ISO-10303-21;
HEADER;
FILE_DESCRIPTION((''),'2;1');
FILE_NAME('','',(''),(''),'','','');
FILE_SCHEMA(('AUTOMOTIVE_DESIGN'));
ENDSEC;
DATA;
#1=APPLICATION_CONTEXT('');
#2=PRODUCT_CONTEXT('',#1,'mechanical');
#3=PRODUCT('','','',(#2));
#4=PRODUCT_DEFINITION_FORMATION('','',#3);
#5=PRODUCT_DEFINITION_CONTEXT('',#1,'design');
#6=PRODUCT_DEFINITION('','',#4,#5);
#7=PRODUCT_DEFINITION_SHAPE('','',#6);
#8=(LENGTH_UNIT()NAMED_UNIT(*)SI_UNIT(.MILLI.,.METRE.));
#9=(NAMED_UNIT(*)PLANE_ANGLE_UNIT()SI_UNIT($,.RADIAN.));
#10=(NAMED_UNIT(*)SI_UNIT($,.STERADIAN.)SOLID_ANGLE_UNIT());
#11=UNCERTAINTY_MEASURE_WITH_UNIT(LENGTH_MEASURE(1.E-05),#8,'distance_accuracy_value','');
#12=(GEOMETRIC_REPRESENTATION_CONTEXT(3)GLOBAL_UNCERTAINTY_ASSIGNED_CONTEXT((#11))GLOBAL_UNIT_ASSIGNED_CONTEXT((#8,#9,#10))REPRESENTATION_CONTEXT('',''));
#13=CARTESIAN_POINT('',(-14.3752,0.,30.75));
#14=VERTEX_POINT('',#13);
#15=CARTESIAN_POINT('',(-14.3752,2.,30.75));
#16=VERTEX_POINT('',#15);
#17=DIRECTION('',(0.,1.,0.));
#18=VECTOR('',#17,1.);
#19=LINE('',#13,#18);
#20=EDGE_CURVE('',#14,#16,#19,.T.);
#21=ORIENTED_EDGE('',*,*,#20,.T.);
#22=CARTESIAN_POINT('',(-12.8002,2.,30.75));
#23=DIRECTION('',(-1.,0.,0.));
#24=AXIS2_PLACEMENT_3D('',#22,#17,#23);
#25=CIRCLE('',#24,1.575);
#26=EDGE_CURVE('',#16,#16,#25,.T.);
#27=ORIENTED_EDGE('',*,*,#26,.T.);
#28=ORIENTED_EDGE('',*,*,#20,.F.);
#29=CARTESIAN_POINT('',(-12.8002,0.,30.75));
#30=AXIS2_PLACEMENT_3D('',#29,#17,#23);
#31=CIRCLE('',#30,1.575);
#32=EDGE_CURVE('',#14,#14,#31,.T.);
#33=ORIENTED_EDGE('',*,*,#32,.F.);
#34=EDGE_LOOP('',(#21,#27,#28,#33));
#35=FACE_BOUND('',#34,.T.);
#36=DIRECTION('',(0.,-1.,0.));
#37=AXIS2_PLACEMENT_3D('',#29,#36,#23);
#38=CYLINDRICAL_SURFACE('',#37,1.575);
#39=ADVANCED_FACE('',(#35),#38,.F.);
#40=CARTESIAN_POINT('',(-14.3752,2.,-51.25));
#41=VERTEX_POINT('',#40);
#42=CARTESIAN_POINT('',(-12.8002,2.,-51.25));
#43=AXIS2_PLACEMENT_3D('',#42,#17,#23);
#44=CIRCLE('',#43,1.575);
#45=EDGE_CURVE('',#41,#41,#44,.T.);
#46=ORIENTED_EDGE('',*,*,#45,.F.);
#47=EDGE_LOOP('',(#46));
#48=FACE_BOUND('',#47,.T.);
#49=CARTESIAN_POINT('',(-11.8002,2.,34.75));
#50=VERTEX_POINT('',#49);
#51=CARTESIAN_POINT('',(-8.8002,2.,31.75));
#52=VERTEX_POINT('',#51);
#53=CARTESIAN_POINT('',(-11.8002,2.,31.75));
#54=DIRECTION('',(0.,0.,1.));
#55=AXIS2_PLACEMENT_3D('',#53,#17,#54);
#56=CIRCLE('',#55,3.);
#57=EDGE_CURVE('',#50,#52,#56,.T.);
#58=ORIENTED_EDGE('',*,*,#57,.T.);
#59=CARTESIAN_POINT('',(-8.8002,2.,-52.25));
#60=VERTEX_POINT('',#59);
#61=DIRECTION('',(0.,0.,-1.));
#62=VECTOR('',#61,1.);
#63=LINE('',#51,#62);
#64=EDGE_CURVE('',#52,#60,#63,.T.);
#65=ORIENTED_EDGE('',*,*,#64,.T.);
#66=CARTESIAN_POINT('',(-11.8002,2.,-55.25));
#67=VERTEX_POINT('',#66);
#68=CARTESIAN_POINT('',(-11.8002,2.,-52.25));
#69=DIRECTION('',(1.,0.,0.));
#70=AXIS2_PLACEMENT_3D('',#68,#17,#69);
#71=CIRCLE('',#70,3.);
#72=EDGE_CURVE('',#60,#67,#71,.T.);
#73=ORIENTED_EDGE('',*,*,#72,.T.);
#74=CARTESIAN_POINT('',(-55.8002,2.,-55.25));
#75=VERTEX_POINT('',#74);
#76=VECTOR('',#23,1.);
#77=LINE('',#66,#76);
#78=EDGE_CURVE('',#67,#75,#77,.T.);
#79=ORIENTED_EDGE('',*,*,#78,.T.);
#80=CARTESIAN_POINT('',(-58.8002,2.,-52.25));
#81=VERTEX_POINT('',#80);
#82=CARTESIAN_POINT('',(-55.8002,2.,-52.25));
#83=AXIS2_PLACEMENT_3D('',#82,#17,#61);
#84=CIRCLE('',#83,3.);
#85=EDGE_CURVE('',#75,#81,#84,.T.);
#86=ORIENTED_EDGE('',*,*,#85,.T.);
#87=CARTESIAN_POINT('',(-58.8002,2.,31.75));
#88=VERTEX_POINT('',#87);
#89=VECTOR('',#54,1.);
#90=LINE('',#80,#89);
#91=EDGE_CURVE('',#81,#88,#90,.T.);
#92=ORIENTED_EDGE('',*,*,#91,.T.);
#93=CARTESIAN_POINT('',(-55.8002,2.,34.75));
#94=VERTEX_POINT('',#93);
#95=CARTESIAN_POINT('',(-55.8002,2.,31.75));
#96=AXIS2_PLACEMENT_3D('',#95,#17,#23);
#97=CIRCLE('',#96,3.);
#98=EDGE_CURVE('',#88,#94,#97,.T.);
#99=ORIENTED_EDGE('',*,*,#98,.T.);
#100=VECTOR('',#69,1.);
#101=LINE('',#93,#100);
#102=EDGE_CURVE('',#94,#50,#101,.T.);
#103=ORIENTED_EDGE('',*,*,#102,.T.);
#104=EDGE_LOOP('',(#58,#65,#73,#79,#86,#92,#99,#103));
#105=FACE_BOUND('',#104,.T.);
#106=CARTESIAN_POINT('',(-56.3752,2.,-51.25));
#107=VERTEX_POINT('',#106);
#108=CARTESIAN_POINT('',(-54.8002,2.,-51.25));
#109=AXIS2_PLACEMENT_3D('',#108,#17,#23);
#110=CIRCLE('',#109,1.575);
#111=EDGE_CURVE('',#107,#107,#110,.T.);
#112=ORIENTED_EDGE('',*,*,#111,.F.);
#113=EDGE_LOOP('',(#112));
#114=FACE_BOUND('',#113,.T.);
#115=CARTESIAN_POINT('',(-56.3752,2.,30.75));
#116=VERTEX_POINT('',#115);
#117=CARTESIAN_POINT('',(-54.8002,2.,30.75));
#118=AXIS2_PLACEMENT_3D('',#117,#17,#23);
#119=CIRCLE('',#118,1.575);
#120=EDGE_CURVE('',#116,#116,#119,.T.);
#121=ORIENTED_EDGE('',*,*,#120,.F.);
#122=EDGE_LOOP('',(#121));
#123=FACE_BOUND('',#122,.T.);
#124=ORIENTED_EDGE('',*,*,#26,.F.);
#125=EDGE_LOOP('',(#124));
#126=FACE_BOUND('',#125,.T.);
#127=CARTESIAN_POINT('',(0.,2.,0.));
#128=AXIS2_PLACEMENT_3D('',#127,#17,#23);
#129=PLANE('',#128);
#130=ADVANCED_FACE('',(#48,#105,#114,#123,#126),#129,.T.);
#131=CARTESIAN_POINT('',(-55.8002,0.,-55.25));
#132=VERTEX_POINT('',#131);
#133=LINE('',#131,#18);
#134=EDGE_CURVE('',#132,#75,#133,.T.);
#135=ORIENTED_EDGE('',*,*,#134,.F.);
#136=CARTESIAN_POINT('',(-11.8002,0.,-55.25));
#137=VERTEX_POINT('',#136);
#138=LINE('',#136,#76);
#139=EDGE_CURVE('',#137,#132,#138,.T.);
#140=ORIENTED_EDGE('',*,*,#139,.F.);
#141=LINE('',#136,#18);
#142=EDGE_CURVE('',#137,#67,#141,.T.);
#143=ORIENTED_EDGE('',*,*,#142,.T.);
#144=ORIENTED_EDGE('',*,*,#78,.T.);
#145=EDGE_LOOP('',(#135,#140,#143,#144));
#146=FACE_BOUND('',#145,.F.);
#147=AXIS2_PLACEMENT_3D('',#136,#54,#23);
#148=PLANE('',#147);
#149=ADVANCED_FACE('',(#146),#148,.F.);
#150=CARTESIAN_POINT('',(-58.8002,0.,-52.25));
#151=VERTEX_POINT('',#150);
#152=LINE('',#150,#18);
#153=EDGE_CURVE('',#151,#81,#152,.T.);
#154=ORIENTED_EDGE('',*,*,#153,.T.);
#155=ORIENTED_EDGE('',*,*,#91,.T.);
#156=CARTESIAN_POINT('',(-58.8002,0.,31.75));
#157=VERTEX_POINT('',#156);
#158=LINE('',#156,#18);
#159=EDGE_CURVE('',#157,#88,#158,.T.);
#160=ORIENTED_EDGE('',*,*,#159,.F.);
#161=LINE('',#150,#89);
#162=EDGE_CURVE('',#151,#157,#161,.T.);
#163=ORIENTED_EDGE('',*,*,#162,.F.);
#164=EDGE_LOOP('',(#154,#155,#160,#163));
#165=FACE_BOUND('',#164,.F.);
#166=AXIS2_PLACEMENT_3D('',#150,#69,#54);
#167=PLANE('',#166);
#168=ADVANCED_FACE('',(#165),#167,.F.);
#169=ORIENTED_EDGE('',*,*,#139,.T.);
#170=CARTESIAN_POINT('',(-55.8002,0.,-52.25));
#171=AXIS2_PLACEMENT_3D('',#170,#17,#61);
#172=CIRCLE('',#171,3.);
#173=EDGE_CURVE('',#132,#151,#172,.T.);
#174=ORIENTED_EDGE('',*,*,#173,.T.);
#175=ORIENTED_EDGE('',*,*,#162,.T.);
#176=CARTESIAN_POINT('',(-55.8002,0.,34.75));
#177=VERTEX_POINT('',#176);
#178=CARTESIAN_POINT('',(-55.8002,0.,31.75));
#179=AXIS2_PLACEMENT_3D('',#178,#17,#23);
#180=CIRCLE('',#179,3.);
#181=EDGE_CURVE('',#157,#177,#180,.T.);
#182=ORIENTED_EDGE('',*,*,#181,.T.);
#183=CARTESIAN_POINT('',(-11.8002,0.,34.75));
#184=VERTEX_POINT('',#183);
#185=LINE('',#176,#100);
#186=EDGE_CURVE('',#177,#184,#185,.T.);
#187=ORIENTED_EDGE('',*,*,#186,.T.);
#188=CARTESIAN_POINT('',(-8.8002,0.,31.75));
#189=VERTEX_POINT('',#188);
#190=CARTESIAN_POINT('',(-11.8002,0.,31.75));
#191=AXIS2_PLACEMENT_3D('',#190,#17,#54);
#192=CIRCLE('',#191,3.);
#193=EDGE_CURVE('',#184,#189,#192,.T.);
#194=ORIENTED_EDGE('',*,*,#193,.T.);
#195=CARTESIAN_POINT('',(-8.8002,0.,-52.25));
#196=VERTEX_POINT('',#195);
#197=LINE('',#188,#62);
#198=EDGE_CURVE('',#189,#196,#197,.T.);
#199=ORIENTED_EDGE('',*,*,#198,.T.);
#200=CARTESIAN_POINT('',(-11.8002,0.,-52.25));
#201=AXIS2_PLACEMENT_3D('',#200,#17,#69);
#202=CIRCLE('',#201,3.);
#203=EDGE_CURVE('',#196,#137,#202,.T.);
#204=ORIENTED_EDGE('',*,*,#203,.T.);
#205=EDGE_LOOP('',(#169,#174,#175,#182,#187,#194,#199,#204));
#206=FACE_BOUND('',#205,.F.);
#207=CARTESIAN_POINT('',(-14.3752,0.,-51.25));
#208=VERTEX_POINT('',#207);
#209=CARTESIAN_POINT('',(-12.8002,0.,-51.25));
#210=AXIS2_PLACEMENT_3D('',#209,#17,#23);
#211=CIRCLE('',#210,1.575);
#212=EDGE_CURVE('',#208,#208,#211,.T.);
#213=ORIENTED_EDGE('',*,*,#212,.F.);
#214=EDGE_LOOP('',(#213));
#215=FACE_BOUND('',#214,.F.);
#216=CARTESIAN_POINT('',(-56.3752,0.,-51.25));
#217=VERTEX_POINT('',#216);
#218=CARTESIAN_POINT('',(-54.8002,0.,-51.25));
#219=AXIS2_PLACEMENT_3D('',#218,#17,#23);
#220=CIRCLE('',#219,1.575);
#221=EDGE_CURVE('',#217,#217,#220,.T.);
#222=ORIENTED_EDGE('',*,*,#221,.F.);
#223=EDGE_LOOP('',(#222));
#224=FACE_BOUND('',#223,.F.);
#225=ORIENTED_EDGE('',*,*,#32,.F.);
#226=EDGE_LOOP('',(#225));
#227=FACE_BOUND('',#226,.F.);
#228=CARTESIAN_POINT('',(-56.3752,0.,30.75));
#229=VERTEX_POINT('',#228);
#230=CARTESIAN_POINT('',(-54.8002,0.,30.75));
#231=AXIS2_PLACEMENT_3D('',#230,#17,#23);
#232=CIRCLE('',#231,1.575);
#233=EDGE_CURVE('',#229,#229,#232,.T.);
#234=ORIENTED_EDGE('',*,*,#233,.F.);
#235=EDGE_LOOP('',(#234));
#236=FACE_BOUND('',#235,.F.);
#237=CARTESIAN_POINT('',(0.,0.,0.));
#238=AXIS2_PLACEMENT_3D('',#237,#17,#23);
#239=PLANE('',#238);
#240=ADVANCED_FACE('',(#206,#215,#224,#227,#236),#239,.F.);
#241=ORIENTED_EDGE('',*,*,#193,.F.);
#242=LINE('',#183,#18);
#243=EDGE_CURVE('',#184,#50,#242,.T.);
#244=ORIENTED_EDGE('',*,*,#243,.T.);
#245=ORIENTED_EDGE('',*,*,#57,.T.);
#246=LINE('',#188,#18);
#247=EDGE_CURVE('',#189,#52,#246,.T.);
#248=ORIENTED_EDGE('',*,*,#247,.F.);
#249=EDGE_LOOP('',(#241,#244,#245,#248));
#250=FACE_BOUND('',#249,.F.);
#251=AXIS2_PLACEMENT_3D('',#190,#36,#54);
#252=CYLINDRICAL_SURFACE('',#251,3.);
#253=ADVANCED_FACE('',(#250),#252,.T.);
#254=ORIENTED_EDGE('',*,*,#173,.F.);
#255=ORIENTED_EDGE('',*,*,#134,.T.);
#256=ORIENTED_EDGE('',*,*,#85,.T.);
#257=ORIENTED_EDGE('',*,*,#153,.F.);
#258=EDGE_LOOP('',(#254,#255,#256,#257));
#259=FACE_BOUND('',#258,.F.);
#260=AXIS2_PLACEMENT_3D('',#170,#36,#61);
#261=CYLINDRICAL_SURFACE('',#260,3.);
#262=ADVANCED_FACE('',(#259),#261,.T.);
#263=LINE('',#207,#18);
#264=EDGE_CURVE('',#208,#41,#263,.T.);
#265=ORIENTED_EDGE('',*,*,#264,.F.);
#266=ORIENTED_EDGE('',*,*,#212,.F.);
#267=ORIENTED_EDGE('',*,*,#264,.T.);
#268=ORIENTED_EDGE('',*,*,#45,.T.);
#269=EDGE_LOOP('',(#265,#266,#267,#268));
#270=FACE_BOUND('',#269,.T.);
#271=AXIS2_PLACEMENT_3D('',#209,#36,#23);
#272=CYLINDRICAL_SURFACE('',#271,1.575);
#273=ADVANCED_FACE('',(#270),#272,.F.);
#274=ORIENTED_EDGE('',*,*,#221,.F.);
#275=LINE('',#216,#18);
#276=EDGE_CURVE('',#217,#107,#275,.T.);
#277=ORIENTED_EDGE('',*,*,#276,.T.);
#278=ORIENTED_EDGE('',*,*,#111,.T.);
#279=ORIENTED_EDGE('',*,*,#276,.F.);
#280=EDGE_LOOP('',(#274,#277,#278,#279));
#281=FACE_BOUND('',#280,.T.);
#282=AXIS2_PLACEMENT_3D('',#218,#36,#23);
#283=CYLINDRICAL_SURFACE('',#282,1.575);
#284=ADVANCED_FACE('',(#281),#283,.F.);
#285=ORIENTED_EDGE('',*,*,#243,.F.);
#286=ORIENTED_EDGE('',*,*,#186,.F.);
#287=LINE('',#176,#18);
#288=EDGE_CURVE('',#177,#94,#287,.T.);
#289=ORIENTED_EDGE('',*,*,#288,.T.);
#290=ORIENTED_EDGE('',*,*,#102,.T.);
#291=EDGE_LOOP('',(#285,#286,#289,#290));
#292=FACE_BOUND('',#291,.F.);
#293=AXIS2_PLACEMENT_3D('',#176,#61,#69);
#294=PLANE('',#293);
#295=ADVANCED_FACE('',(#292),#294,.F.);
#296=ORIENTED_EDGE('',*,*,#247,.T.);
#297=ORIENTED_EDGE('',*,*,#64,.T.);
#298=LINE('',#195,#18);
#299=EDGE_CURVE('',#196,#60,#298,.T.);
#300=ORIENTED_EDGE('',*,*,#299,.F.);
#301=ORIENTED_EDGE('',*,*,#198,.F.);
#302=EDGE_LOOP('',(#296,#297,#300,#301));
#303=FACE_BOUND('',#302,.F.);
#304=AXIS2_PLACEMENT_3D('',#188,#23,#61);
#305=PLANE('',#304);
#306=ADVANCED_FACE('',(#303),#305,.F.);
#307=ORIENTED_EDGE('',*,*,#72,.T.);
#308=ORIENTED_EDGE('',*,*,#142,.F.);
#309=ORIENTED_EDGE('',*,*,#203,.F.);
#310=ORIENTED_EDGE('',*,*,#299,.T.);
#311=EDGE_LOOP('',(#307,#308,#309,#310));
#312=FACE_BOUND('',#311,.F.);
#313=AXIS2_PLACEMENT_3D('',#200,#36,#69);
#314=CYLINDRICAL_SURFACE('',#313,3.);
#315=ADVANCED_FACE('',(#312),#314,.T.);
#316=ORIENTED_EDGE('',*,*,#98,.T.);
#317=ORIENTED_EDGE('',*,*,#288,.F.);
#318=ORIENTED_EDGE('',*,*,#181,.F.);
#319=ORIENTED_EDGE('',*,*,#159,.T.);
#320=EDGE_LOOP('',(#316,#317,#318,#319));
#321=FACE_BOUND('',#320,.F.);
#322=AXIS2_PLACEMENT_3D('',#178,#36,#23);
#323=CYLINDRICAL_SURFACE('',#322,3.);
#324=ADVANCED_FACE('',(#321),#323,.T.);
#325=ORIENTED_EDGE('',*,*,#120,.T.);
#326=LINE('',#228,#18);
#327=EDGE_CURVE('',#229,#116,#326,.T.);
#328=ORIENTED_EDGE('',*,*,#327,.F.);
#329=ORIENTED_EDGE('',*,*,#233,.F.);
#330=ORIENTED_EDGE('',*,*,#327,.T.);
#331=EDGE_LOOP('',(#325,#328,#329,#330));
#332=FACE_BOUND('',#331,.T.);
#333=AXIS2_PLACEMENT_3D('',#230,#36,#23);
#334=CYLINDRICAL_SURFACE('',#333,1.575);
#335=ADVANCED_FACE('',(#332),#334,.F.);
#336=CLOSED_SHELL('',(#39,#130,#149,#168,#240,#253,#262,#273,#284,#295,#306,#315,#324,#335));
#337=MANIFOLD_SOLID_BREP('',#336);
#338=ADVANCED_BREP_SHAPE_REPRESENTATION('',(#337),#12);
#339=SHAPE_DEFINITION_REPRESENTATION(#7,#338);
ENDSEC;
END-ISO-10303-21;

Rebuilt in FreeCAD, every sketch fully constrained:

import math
import FreeCAD as App
import Part
import Sketcher
from FreeCAD import Vector
Q = App.Units.Quantity

doc = App.newDocument("Part")
params = doc.addObject("Spreadsheet::Sheet", "Params")
for row, (alias, value) in enumerate([
    ("sketch1_radius", "3 mm"),
    ("sketch1_diameter", "3.15 mm"),
    ("sketch1_width", "44 mm"),
    ("sketch1_height", "84 mm"),
    ("pad1_length", "2 mm"),
], start=1):
    params.set(f"A{row}", alias)
    params.set(f"B{row}", "=" + value)
    params.setAlias(f"B{row}", alias)

body = doc.addObject("PartDesign::Body", "Body")

# Sketch on XZ plane
sketch1 = body.newObject("Sketcher::SketchObject", "Sketch")
sketch1.AttachmentSupport = (doc.getObject("XZ_Plane"), [""])
sketch1.MapMode = "FlatFace"
sketch1.addGeometry([
    Part.ArcOfCircle(Part.Circle(Vector(-11.8002, -52.25, 0), Vector(0, 0, 1), 3), math.radians(-90), math.radians(0)),  # 0
    Part.LineSegment(Vector(-11.8002, -55.25, 0), Vector(-55.8002, -55.25, 0)),  # 1
    Part.ArcOfCircle(Part.Circle(Vector(-55.8002, -52.25, 0), Vector(0, 0, 1), 3), math.radians(180), math.radians(270)),  # 2
    Part.LineSegment(Vector(-58.8002, -52.25, 0), Vector(-58.8002, 31.75, 0)),  # 3
    Part.ArcOfCircle(Part.Circle(Vector(-55.8002, 31.75, 0), Vector(0, 0, 1), 3), math.radians(90), math.radians(180)),  # 4
    Part.LineSegment(Vector(-55.8002, 34.75, 0), Vector(-11.8002, 34.75, 0)),  # 5
    Part.ArcOfCircle(Part.Circle(Vector(-11.8002, 31.75, 0), Vector(0, 0, 1), 3), math.radians(0), math.radians(90)),  # 6
    Part.LineSegment(Vector(-8.8002, 31.75, 0), Vector(-8.8002, -52.25, 0)),  # 7
    Part.Circle(Vector(-12.8002, -51.25, 0), Vector(0, 0, 1), 1.575),  # 8
    Part.Circle(Vector(-54.8002, -51.25, 0), Vector(0, 0, 1), 1.575),  # 9
    Part.Circle(Vector(-12.8002, 30.75, 0), Vector(0, 0, 1), 1.575),  # 10
    Part.Circle(Vector(-54.8002, 30.75, 0), Vector(0, 0, 1), 1.575),  # 11
], False)
sketch1.addConstraint([
    Sketcher.Constraint("Tangent", 0, 1, 1, 1),
    Sketcher.Constraint("Tangent", 1, 2, 2, 2),
    Sketcher.Constraint("Tangent", 2, 1, 3, 1),
    Sketcher.Constraint("Tangent", 3, 2, 4, 2),
    Sketcher.Constraint("Tangent", 4, 1, 5, 1),
    Sketcher.Constraint("Tangent", 5, 2, 6, 2),
    Sketcher.Constraint("Tangent", 6, 1, 7, 1),
    Sketcher.Constraint("Tangent", 7, 2, 0, 2),
    Sketcher.Constraint("Horizontal", 1),
    Sketcher.Constraint("Vertical", 3),
    Sketcher.Constraint("Horizontal", 5),
    Sketcher.Constraint("Vertical", 7),
    Sketcher.Constraint("Equal", 0, 2),
    Sketcher.Constraint("Equal", 2, 4),
    Sketcher.Constraint("Equal", 4, 6),
    Sketcher.Constraint("Equal", 8, 9),
    Sketcher.Constraint("Equal", 9, 10),
    Sketcher.Constraint("Equal", 10, 11),
    Sketcher.Constraint("Horizontal", 8, 3, 9, 3),
    Sketcher.Constraint("Horizontal", 10, 3, 11, 3),
    Sketcher.Constraint("Vertical", 8, 3, 10, 3),
    Sketcher.Constraint("Vertical", 9, 3, 11, 3),
    Sketcher.Constraint("Radius", 0, Q("3 mm")),
    Sketcher.Constraint("Diameter", 8, Q("3.15 mm")),
    Sketcher.Constraint("DistanceY", 0, 1, 8, 3, Q("4 mm")),
    Sketcher.Constraint("DistanceX", 2, 1, 9, 3, Q("4 mm")),
    Sketcher.Constraint("DistanceY", 11, 3, 4, 1, Q("4 mm")),
    Sketcher.Constraint("DistanceX", 10, 3, 6, 1, Q("4 mm")),
    Sketcher.Constraint("DistanceX", 1, 2, 1, 1, Q("44 mm")),
    Sketcher.Constraint("DistanceY", 3, 1, 3, 2, Q("84 mm")),
    Sketcher.Constraint("DistanceY", 0, 3, -1, 1, Q("52.25 mm")),
    Sketcher.Constraint("DistanceX", 0, 3, -1, 1, Q("11.8002 mm")),
])
sketch1.setExpression("Constraints[22]", "Params.sketch1_radius")
sketch1.setExpression("Constraints[23]", "Params.sketch1_diameter")
sketch1.setExpression("Constraints[28]", "Params.sketch1_width")
sketch1.setExpression("Constraints[29]", "Params.sketch1_height")
pad1 = body.newObject("PartDesign::Pad", "Pad")
pad1.Profile = sketch1
pad1.setExpression("Length", "Params.pad1_length")
pad1.Reversed = True

doc.recompute()
